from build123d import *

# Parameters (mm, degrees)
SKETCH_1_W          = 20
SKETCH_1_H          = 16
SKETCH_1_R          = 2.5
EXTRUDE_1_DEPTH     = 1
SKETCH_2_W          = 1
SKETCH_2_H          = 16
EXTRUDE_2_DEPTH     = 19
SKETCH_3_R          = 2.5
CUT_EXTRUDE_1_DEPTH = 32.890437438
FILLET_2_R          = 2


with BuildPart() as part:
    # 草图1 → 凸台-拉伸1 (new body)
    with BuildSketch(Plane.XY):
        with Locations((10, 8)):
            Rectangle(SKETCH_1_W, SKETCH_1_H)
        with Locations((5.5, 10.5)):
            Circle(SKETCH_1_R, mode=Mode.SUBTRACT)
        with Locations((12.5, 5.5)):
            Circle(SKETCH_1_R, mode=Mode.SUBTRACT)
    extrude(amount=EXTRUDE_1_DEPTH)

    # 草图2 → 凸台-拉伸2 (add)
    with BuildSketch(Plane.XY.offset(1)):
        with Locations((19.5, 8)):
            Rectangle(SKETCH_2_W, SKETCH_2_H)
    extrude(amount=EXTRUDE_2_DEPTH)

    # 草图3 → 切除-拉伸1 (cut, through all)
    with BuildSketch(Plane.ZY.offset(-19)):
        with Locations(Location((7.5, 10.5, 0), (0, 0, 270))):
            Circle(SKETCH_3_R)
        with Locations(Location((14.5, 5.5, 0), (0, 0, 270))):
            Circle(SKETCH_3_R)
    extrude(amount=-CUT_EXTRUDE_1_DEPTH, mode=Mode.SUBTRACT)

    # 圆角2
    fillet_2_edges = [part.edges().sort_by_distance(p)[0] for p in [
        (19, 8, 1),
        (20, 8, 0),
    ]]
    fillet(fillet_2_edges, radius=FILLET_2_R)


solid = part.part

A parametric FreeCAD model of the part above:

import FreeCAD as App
import Part
import Sketcher

V = App.Vector


def edges_at(feature, points):
    """Names of the edges that pass closest to the given points."""
    edges = feature.Shape.Edges
    near = lambda p: min(range(len(edges)), key=lambda i: edges[i].distToShape(Part.Vertex(*p))[0])
    return sorted({f"Edge{near(p) + 1}" for p in points})

doc = App.newDocument("Part")
body = doc.addObject("PartDesign::Body", "Body")

sketch1 = body.newObject("Sketcher::SketchObject", "Sketch")
sketch1.AttachmentSupport = (doc.getObject("XY_Plane"), [""])
sketch1.MapMode = "FlatFace"
sketch1.addGeometry([
    Part.LineSegment(V(0, 16, 0), V(0, 0, 0)),
    Part.LineSegment(V(0, 0, 0), V(20, 0, 0)),
    Part.LineSegment(V(20, 0, 0), V(20, 16, 0)),
    Part.LineSegment(V(20, 16, 0), V(0, 16, 0)),
    Part.Circle(V(12.5, 5.5, 0), V(0, 0, 1), 2.5),
    Part.Circle(V(5.5, 10.5, 0), V(0, 0, 1), 2.5),
], False)
sketch1.addConstraint([
    Sketcher.Constraint("Coincident", 0, 2, 1, 1),
    Sketcher.Constraint("Coincident", 1, 2, 2, 1),
    Sketcher.Constraint("Coincident", 2, 2, 3, 1),
    Sketcher.Constraint("Coincident", 3, 2, 0, 1),
    Sketcher.Constraint("Vertical", 0),
    Sketcher.Constraint("Horizontal", 1),
    Sketcher.Constraint("Vertical", 2),
    Sketcher.Constraint("Horizontal", 3),
    Sketcher.Constraint("Coincident", 0, 2, -1, 1),
    Sketcher.Constraint("Equal", 4, 5),
    Sketcher.Constraint("Diameter", 4, 5.0),
    Sketcher.Constraint("DistanceX", 1, 1, 1, 2, 20.0),
    Sketcher.Constraint("DistanceY", 0, 2, 0, 1, 16.0),
    Sketcher.Constraint("DistanceX", 5, 3, 4, 3, 7.0),
    Sketcher.Constraint("DistanceY", 4, 3, 5, 3, 5.0),
    Sketcher.Constraint("DistanceX", -1, 1, 4, 3, 12.5),
    Sketcher.Constraint("DistanceY", -1, 1, 4, 3, 5.5),
])
pad1 = body.newObject("PartDesign::Pad", "Pad")
pad1.Profile = sketch1
pad1.Length = 1

sketch2 = body.newObject("Sketcher::SketchObject", "Sketch001")
sketch2.AttachmentSupport = (doc.getObject("XY_Plane"), [""])
sketch2.MapMode = "FlatFace"
sketch2.AttachmentOffset = App.Placement(V(0, 0, 1), App.Rotation())
sketch2.addGeometry([
    Part.LineSegment(V(19, 16, 0), V(19, 0, 0)),
    Part.LineSegment(V(19, 0, 0), V(20, 0, 0)),
    Part.LineSegment(V(20, 0, 0), V(20, 16, 0)),
    Part.LineSegment(V(20, 16, 0), V(19, 16, 0)),
], False)
sketch2.addConstraint([
    Sketcher.Constraint("Coincident", 0, 2, 1, 1),
    Sketcher.Constraint("Coincident", 1, 2, 2, 1),
    Sketcher.Constraint("Coincident", 2, 2, 3, 1),
    Sketcher.Constraint("Coincident", 3, 2, 0, 1),
    Sketcher.Constraint("Vertical", 0),
    Sketcher.Constraint("Horizontal", 1),
    Sketcher.Constraint("Vertical", 2),
    Sketcher.Constraint("Horizontal", 3),
    Sketcher.Constraint("PointOnObject", 0, 2, -1),
    Sketcher.Constraint("DistanceX", 1, 1, 1, 2, 1.0),
    Sketcher.Constraint("DistanceY", 0, 2, 0, 1, 16.0),
    Sketcher.Constraint("DistanceX", -1, 1, 0, 2, 19.0),
])
pad2 = body.newObject("PartDesign::Pad", "Pad001")
pad2.Profile = sketch2
pad2.Length = 19

sketch3 = body.newObject("Sketcher::SketchObject", "Sketch002")
sketch3.AttachmentSupport = (doc.getObject("YZ_Plane"), [""])
sketch3.MapMode = "FlatFace"
sketch3.AttachmentOffset = App.Placement(V(0, 0, 19), App.Rotation())
sketch3.addGeometry([
    Part.Circle(V(10.5, 7.5, 0), V(0, 0, 1), 2.5),
    Part.Circle(V(5.5, 14.5, 0), V(0, 0, 1), 2.5),
], False)
sketch3.addConstraint([
    Sketcher.Constraint("Equal", 0, 1),
    Sketcher.Constraint("Diameter", 0, 5.0),
    Sketcher.Constraint("DistanceX", 1, 3, 0, 3, 5.0),
    Sketcher.Constraint("DistanceY", 0, 3, 1, 3, 7.0),
    Sketcher.Constraint("DistanceX", -1, 1, 0, 3, 10.5),
    Sketcher.Constraint("DistanceY", -1, 1, 0, 3, 7.5),
])
pocket1 = body.newObject("PartDesign::Pocket", "Pocket")
pocket1.Profile = sketch3
pocket1.Type = "ThroughAll"
pocket1.Reversed = True
doc.recompute()

fillet = body.newObject("PartDesign::Fillet", "Fillet")
fillet.Base = (pocket1, edges_at(pocket1, [(19, 8, 1), (20, 8, 0)]))
fillet.Radius = 2

doc.recompute()
